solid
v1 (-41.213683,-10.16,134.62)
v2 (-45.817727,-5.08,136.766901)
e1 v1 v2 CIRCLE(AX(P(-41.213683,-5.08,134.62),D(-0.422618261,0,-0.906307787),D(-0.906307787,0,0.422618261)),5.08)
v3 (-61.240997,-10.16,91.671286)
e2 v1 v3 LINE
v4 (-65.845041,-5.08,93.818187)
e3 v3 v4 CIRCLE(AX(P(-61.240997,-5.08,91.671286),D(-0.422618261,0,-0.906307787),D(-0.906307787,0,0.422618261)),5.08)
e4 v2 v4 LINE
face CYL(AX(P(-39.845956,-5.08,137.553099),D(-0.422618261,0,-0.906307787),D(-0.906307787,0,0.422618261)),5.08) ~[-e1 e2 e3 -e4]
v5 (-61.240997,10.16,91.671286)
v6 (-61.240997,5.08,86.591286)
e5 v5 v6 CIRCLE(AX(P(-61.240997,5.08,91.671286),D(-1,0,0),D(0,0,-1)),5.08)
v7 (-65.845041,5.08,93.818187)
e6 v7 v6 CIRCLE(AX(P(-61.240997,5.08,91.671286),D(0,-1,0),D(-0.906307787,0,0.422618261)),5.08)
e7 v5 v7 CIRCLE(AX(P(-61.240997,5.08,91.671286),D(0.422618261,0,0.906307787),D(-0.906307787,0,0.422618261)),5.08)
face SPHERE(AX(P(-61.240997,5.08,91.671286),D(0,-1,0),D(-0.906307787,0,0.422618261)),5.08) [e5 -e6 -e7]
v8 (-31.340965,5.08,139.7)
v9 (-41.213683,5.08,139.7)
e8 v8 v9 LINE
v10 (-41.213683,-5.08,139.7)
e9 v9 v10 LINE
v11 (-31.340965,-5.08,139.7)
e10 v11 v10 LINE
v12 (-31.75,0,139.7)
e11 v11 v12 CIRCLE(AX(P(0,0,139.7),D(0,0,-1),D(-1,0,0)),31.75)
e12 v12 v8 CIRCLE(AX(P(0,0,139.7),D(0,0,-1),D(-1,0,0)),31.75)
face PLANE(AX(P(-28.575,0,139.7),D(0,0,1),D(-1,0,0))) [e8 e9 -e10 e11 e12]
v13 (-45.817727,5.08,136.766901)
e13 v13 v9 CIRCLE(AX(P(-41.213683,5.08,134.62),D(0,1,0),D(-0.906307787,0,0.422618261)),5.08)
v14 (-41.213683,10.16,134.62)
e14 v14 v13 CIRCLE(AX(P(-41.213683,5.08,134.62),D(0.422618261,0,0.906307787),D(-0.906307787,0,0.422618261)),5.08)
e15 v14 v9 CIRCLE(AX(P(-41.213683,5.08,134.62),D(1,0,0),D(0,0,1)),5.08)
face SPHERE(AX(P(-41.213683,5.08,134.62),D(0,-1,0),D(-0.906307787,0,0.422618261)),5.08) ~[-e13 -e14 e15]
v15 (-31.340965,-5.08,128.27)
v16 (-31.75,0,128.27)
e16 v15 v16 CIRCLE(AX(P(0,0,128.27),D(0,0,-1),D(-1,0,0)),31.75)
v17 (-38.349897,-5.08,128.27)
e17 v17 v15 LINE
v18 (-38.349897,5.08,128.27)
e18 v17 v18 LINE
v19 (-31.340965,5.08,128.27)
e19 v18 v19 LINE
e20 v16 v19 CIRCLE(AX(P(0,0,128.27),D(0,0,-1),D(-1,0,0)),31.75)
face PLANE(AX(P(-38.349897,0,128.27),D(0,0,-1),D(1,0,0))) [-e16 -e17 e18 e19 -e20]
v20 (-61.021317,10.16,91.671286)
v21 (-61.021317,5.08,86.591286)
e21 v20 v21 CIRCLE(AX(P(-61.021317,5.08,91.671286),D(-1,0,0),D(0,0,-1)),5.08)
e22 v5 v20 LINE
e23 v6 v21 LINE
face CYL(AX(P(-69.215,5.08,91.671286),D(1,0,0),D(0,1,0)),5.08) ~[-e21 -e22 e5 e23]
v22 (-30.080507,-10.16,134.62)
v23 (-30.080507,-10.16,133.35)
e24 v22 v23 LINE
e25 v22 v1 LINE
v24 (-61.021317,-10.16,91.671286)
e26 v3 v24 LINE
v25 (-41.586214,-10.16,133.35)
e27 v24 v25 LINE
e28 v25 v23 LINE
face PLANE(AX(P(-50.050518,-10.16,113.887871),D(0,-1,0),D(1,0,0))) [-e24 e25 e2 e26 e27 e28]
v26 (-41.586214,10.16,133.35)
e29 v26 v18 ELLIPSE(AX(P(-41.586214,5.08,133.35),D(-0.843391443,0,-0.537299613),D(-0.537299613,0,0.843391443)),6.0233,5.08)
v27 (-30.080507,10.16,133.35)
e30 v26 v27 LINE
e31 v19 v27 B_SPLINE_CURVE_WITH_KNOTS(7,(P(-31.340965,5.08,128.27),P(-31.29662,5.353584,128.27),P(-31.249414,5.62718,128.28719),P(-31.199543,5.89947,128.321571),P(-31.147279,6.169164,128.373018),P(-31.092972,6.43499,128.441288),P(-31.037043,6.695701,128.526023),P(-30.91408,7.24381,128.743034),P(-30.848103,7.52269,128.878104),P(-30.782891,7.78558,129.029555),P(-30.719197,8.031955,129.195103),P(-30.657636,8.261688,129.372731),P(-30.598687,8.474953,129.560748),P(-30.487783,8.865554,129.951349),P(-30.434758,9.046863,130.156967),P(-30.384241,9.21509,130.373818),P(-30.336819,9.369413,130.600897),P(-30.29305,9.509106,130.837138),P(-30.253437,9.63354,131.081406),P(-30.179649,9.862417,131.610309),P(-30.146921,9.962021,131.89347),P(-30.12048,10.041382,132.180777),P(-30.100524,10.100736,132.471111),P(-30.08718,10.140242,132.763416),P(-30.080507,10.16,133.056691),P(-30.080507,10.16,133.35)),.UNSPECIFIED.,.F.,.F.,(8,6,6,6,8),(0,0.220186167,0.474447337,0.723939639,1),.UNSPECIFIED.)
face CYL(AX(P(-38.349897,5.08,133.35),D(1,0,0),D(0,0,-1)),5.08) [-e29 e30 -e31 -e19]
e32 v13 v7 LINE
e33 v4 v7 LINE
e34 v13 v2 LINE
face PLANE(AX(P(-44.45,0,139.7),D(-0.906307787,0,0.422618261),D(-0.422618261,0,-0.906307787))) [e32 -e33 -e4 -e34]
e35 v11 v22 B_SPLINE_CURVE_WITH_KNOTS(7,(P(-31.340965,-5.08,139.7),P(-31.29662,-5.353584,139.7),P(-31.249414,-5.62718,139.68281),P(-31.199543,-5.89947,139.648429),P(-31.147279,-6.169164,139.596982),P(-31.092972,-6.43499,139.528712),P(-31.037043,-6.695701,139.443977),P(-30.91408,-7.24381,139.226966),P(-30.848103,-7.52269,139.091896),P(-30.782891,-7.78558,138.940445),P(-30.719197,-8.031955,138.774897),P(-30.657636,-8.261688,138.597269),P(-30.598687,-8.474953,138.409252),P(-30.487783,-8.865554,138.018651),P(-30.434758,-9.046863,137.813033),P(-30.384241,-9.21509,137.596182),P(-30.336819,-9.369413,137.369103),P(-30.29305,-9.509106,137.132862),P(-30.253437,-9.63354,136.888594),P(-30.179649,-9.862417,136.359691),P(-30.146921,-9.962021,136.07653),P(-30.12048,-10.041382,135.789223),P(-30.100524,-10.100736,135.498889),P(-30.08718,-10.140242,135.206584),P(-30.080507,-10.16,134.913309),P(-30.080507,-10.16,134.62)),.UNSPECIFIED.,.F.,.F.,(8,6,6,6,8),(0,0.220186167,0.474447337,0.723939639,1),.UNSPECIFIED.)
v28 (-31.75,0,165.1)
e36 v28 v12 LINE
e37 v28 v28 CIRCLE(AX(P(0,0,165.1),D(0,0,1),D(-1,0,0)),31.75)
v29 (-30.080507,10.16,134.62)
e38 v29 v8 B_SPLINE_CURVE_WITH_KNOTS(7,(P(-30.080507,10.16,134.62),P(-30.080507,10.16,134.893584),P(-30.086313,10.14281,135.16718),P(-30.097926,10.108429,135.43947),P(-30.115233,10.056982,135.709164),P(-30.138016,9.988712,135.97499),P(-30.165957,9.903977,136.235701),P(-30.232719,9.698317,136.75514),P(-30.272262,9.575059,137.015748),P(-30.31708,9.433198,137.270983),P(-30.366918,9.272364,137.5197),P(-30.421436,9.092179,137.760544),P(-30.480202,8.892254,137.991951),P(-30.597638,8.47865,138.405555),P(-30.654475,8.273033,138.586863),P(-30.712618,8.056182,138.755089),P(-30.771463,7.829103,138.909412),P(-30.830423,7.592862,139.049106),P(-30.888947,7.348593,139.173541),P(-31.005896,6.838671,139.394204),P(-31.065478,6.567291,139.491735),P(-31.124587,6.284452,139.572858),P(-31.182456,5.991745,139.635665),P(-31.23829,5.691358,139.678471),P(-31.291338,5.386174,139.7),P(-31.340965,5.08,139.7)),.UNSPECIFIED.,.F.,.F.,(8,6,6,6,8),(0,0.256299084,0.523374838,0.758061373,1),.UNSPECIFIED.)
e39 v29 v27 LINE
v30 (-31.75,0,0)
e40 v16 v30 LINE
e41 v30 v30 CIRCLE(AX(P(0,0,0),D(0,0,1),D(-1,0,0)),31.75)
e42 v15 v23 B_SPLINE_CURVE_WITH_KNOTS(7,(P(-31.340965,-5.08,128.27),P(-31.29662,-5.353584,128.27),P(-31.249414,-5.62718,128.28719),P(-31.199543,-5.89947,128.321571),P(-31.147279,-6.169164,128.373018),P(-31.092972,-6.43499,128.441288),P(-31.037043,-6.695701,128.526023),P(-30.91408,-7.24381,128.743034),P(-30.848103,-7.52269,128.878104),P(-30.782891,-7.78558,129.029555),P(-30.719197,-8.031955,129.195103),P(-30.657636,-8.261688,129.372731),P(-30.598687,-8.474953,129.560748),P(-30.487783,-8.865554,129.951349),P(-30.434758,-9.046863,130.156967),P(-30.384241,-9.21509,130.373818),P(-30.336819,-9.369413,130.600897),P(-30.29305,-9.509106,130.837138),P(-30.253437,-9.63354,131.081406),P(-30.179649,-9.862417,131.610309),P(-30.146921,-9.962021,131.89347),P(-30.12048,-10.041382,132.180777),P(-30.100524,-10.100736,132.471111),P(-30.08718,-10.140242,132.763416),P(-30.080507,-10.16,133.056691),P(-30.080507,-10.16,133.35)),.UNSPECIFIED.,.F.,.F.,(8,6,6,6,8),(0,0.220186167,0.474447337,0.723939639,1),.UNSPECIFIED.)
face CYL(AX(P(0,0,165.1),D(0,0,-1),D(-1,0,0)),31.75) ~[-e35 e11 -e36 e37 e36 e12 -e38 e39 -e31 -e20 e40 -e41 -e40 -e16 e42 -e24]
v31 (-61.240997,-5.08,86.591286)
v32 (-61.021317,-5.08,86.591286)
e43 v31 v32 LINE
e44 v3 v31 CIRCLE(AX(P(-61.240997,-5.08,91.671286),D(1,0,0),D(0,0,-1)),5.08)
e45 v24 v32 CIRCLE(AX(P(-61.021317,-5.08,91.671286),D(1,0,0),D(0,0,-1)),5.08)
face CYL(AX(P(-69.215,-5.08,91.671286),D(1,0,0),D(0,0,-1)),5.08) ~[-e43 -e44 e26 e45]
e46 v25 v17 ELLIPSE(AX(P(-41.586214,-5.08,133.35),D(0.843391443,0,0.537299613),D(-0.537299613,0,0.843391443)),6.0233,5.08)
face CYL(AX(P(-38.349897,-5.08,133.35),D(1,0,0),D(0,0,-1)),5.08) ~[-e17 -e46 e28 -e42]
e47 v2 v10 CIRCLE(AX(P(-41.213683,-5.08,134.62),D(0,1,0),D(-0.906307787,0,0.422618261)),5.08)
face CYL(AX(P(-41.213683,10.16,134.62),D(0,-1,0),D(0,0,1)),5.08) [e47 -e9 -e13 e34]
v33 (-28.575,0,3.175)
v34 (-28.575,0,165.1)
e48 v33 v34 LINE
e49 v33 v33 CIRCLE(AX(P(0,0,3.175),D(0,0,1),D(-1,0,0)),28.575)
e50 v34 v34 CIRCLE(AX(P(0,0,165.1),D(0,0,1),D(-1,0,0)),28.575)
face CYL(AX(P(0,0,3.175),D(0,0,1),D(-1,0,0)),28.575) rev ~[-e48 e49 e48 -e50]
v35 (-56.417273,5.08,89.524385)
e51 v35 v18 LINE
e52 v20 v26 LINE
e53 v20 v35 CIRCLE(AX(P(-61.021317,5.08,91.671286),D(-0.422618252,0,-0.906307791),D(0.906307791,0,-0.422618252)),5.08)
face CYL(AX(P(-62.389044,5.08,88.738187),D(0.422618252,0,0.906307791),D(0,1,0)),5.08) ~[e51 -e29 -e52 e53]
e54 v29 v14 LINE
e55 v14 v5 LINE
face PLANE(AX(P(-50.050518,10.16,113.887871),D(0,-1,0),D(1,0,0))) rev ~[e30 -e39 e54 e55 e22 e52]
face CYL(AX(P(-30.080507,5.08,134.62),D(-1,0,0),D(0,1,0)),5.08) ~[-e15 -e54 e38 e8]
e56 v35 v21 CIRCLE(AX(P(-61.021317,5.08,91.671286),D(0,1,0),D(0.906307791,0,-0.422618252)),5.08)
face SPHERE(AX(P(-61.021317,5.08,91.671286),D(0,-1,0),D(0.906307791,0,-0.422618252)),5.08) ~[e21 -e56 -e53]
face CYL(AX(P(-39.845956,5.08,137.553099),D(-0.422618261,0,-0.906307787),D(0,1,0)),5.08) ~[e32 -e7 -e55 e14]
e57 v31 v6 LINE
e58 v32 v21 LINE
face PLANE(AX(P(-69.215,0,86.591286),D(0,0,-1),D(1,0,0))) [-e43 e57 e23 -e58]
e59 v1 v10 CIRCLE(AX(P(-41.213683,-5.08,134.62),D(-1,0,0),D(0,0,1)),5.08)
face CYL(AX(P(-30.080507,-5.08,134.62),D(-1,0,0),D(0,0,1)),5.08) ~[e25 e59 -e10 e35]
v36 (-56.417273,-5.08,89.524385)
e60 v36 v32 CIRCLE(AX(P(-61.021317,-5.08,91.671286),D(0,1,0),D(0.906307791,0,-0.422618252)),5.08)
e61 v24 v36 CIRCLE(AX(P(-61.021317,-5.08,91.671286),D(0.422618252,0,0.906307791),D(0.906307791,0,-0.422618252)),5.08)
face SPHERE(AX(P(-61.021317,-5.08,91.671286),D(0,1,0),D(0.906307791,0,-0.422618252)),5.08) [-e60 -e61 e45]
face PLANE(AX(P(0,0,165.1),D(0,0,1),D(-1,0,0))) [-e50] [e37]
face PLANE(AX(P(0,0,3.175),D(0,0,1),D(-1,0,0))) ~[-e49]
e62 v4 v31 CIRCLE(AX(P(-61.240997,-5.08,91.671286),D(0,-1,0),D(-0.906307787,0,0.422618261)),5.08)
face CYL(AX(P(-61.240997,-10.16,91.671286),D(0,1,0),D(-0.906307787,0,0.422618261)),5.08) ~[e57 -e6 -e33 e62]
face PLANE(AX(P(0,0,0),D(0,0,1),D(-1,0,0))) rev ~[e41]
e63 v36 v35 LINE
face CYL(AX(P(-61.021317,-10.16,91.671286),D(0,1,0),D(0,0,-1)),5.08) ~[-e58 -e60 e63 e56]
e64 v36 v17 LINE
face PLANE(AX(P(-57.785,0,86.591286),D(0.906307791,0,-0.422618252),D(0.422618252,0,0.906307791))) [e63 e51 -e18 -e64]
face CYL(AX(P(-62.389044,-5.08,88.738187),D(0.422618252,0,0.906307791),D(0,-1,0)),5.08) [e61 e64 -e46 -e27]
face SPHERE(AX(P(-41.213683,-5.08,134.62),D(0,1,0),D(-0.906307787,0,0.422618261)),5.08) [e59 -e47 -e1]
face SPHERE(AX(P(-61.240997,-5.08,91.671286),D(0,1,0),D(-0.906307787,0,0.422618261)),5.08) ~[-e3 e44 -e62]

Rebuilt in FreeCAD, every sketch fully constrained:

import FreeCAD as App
import Part
import Sketcher

V = App.Vector
Q = App.Units.Quantity


def edges_at(feature, points):
    """Names of the edges that pass closest to the given points."""
    edges = feature.Shape.Edges
    near = lambda p: min(range(len(edges)), key=lambda i: edges[i].distToShape(Part.Vertex(*p))[0])
    return sorted({f"Edge{near(p) + 1}" for p in points})


def add_polygon(sketch, points):
    """Adds a closed chain of lines whose ends are joined by coincident constraints."""
    first, n = sketch.GeometryCount, len(points)
    for a, b in zip(points, points[1:] + points[:1]):
        sketch.addGeometry(Part.LineSegment(App.Vector(*a, 0), App.Vector(*b, 0)), False)
    for i in range(n):
        sketch.addConstraint(Sketcher.Constraint("Coincident", first + i, 2, first + (i + 1) % n, 1))

doc = App.newDocument("Part")
body = doc.addObject("PartDesign::Body", "Body")

# Sketch on XZ plane
sketch1 = doc.addObject("Sketcher::SketchObject", "Sketch")
body.addObject(sketch1)
sketch1.AttachmentSupport = (doc.XZ_Plane, [""])
sketch1.MapMode = "FlatFace"
add_polygon(sketch1, [(-31.75, 0), (0, 0), (0, 3.175), (-28.575, 3.175), (-28.575, 165.1), (-31.75, 165.1)])  # lines 0-5
sketch1.addConstraint([
    Sketcher.Constraint("Horizontal", 0),
    Sketcher.Constraint("Vertical", 1),
    Sketcher.Constraint("Horizontal", 2),
    Sketcher.Constraint("Vertical", 3),
    Sketcher.Constraint("Horizontal", 4),
    Sketcher.Constraint("Vertical", 5),
    Sketcher.Constraint("Coincident", 0, 2, -1, 1),
    Sketcher.Constraint("Equal", 4, 1),
    Sketcher.Constraint("DistanceY", 5, 2, 5, 1, Q("6.5 in")),
    Sketcher.Constraint("DistanceX", 0, 1, 0, 2, Q("1.25 in")),
    Sketcher.Constraint("DistanceX", 2, 2, 2, 1, Q("1.125 in")),
])
revolution = doc.addObject("PartDesign::Revolution", "Revolution")
body.addObject(revolution)
revolution.Profile = sketch1
revolution.ReferenceAxis = (sketch1, ["V_Axis"])
revolution.Angle = 360

# Sketch on XZ plane
sketch2 = doc.addObject("Sketcher::SketchObject", "Sketch001")
body.addObject(sketch2)
sketch2.AttachmentSupport = (doc.XZ_Plane, [""])
sketch2.MapMode = "FlatFace"
add_polygon(sketch2, [(-38.349897, 128.27), (-28.575, 128.27), (-28.575, 139.7), (-44.45, 139.7), (-69.215, 86.591286), (-57.785, 86.591286)])  # lines 0-5
sketch2.addConstraint([
    Sketcher.Constraint("Horizontal", 0),
    Sketcher.Constraint("Vertical", 1),
    Sketcher.Constraint("Horizontal", 2),
    Sketcher.Constraint("Horizontal", 4),
    Sketcher.Constraint("Parallel", 3, 5),
    Sketcher.Constraint("Equal", 4, 1),
    Sketcher.Constraint("Angle", 3, Q("-115 deg")),
    Sketcher.Constraint("DistanceX", 4, 1, 4, 2, Q("0.45 in")),
    Sketcher.Constraint("DistanceY", -1, 1, 1, 2, Q("5.5 in")),
    Sketcher.Constraint("DistanceX", 3, 2, 0, 2, Q("1.6 in")),
    Sketcher.Constraint("DistanceX", 2, 2, 2, 1, Q("0.625 in")),
    Sketcher.Constraint("DistanceX", 2, 2, -1, 1, Q("1.75 in")),
])
pad1 = doc.addObject("PartDesign::Pad", "Pad")
body.addObject(pad1)
pad1.Profile = sketch2
pad1.Length = Q("0.8 in")
pad1.Midplane = True
doc.recompute()

fillet = doc.addObject("PartDesign::Fillet", "Fillet")
body.addObject(fillet)
fillet.Base = (pad1, edges_at(pad1, [
    (-56.833, 10.16, 113.146),
    (-56.833, -10.16, 113.146),
    (-37.265, -10.16, 139.7),
    (-37.265, 10.16, 139.7),
    (-44.45, 0, 139.7),
    (-48.067, -10.16, 107.431),
    (-48.067, 10.16, 107.431),
    (-63.5, -10.16, 86.591),
    (-63.5, 10.16, 86.591),
    (-57.785, 0, 86.591),
    (-69.215, 0, 86.591),
    (-34.215, 10.16, 128.27),
    (-34.215, -10.16, 128.27),
]))
fillet.Radius = Q("0.2 in")

doc.recompute()
